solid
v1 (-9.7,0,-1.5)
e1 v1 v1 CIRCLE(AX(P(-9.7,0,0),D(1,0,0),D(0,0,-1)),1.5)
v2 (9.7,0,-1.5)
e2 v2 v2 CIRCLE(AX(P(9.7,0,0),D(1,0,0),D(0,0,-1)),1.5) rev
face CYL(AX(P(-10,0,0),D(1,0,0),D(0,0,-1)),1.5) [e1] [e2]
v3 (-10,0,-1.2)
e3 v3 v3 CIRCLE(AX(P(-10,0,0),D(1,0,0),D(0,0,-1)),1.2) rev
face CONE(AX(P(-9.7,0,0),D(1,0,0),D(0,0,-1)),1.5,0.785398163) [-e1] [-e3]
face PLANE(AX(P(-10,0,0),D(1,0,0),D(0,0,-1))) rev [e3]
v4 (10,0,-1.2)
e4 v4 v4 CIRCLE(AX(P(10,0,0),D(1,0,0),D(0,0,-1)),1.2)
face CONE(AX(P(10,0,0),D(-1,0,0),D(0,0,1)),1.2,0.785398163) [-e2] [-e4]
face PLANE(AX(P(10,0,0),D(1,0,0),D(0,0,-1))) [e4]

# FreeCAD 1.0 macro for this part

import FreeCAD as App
import Part
import Sketcher

V = App.Vector
Q = App.Units.Quantity


def edges_at(feature, points):
    """Names of the edges that pass closest to the given points."""
    edges = feature.Shape.Edges
    near = lambda p: min(range(len(edges)), key=lambda i: edges[i].distToShape(Part.Vertex(*p))[0])
    return sorted({f"Edge{near(p) + 1}" for p in points})

doc = App.newDocument("Part")
body = doc.addObject("PartDesign::Body", "Body")

# Sketch on YZ plane
sketch1 = body.newObject("Sketcher::SketchObject", "Sketch")
sketch1.AttachmentSupport = (doc.getObject("YZ_Plane"), [""])
sketch1.MapMode = "FlatFace"
sketch1.addGeometry(Part.Circle(V(0, 0, 0), V(0, 0, 1), 1.5), False)
sketch1.addConstraint([
    Sketcher.Constraint("Coincident", 0, 3, -1, 1),
    Sketcher.Constraint("Diameter", 0, Q("3 mm")),
])
pad1 = body.newObject("PartDesign::Pad", "Pad")
pad1.Profile = sketch1
pad1.Type = "TwoLengths"
pad1.Length = 10
pad1.Length2 = 10
doc.recompute()

chamfer = body.newObject("PartDesign::Chamfer", "Chamfer")
chamfer.Base = (pad1, edges_at(pad1, [(-10, 0, 1.5), (10, 0, 1.5)]))
chamfer.Size = 0.3

doc.recompute()
